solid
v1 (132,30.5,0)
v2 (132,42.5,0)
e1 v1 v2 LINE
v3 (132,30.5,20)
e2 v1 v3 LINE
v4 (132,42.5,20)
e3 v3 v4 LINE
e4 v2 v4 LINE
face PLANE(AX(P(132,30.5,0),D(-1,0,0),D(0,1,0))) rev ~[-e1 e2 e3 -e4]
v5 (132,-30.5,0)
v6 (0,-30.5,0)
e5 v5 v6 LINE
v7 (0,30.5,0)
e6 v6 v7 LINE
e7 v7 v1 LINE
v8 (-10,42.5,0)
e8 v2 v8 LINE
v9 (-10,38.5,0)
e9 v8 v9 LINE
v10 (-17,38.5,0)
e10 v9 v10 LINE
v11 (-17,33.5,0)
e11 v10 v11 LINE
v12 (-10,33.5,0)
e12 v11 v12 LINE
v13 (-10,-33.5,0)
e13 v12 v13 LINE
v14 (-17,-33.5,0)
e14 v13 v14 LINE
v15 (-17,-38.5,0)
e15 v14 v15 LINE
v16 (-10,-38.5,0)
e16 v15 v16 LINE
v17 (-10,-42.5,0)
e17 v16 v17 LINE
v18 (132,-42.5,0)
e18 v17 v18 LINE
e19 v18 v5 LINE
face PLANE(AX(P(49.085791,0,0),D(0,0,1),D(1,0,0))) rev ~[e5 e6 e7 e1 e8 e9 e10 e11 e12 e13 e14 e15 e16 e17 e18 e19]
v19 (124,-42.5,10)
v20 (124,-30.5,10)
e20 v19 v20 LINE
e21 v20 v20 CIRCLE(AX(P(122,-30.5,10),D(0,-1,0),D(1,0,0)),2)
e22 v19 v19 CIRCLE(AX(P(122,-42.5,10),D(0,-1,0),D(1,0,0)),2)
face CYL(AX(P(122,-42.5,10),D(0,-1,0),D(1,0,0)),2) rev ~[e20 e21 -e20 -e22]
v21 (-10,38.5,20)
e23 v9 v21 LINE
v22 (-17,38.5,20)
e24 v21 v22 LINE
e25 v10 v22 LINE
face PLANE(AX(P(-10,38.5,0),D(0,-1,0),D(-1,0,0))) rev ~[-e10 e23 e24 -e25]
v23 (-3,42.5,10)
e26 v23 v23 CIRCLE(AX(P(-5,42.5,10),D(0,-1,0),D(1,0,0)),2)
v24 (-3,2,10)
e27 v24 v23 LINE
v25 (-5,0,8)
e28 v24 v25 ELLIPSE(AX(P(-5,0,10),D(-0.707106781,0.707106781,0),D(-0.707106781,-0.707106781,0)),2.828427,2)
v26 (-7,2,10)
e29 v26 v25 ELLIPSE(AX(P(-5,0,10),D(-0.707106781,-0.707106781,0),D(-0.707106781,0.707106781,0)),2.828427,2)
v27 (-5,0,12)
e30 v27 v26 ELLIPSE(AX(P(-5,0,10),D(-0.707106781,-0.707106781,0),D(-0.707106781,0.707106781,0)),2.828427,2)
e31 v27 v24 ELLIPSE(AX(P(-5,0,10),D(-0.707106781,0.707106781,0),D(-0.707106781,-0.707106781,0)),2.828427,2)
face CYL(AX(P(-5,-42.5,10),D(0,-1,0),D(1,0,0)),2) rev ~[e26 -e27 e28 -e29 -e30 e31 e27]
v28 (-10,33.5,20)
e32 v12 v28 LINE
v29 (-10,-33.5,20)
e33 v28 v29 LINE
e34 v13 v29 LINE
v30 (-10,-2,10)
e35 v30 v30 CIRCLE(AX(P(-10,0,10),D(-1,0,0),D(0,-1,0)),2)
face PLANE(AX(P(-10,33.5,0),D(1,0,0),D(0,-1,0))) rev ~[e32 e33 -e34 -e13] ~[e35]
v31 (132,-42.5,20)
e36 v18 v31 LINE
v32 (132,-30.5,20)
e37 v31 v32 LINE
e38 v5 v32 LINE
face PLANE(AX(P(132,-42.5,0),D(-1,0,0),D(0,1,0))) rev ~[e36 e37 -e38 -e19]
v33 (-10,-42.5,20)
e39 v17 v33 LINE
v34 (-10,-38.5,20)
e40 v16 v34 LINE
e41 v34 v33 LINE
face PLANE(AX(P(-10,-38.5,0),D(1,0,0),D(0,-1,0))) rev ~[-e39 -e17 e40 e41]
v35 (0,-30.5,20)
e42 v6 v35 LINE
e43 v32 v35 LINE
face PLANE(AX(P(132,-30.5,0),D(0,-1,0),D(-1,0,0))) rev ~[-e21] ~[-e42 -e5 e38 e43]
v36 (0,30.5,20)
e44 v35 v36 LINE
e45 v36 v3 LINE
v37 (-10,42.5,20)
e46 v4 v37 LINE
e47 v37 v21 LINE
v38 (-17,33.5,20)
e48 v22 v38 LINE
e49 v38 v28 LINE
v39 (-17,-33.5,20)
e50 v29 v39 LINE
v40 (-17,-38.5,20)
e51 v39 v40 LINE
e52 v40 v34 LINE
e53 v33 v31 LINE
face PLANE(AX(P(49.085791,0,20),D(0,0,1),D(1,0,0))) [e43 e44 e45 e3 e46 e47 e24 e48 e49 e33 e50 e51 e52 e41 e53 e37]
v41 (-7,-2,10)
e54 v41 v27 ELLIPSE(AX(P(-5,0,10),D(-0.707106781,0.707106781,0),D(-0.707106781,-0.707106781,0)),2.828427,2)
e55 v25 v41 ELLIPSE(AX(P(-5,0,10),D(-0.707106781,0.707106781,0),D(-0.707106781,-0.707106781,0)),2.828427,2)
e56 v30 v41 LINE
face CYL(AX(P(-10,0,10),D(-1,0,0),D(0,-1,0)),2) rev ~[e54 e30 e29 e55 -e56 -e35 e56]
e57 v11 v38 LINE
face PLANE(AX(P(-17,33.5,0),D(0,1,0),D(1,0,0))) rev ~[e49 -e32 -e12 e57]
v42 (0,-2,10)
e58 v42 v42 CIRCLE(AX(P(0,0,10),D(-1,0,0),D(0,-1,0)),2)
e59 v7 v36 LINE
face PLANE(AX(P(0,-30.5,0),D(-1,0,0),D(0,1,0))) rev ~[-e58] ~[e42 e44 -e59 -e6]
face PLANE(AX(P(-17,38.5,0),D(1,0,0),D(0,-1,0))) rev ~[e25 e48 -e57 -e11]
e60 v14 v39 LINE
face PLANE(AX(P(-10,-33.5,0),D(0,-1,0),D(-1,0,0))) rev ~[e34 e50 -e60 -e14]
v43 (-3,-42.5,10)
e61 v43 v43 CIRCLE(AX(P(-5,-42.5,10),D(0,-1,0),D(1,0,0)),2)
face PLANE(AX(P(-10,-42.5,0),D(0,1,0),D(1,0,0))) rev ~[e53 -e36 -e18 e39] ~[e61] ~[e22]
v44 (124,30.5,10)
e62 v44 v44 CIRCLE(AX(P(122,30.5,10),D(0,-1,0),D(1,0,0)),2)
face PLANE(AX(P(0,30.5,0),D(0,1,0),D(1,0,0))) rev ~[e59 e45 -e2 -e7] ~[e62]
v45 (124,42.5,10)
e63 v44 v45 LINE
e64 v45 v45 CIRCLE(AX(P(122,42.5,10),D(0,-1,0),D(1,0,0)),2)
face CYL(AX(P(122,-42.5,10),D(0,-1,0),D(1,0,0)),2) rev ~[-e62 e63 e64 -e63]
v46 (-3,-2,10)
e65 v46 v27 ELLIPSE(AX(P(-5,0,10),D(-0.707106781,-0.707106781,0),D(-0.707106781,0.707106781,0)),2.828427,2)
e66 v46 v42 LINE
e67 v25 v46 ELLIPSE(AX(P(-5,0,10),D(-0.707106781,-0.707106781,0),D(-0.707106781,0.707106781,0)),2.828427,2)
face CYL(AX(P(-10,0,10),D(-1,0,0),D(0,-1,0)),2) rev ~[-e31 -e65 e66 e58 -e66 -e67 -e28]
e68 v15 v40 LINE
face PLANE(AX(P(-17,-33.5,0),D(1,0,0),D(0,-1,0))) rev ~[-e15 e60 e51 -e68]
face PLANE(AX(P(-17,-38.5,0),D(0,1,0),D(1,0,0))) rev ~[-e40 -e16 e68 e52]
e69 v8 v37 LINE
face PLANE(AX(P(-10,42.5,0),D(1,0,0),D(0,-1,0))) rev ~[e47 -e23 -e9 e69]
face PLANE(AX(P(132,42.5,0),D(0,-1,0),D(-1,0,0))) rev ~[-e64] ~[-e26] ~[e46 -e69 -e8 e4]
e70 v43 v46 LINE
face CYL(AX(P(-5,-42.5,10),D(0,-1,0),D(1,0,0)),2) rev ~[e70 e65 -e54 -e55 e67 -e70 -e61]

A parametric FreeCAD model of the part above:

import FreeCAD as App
import Part
import Sketcher

doc = App.newDocument("Part")
params = doc.addObject("Spreadsheet::Sheet", "Params")
for row, (alias, value) in enumerate([
    ("sketch1_width", "142 mm"),
    ("sketch1_width2", "132 mm"),
    ("sketch1_width3", "7 mm"),
    ("sketch1_height", "12 mm"),
    ("sketch1_height2", "61 mm"),
    ("pad1_length", "20 mm"),
    ("sketch2_diameter", "4 mm"),
    ("sketch3_diameter", "4 mm"),
], start=1):
    params.set(f"A{row}", alias)
    params.set(f"B{row}", "=" + value)
    params.setAlias(f"B{row}", alias)

body = doc.addObject("PartDesign::Body", "Body")

# Sketch on XY plane
sketch1 = body.newObject("Sketcher::SketchObject", "Sketch")
sketch1.AttachmentSupport = (doc.getObject("XY_Plane"), [""])
sketch1.MapMode = "FlatFace"
sketch1.addGeometry([
    Part.LineSegment(App.Vector(-10, -42.5, 0), App.Vector(132, -42.5, 0)),  # 0
    Part.LineSegment(App.Vector(132, -42.5, 0), App.Vector(132, -30.5, 0)),  # 1
    Part.LineSegment(App.Vector(132, -30.5, 0), App.Vector(0, -30.5, 0)),  # 2
    Part.LineSegment(App.Vector(0, -30.5, 0), App.Vector(0, 30.5, 0)),  # 3
    Part.LineSegment(App.Vector(0, 30.5, 0), App.Vector(132, 30.5, 0)),  # 4
    Part.LineSegment(App.Vector(132, 30.5, 0), App.Vector(132, 42.5, 0)),  # 5
    Part.LineSegment(App.Vector(132, 42.5, 0), App.Vector(-10, 42.5, 0)),  # 6
    Part.LineSegment(App.Vector(-10, 42.5, 0), App.Vector(-10, 38.5, 0)),  # 7
    Part.LineSegment(App.Vector(-10, 38.5, 0), App.Vector(-17, 38.5, 0)),  # 8
    Part.LineSegment(App.Vector(-17, 38.5, 0), App.Vector(-17, 33.5, 0)),  # 9
    Part.LineSegment(App.Vector(-17, 33.5, 0), App.Vector(-10, 33.5, 0)),  # 10
    Part.LineSegment(App.Vector(-10, 33.5, 0), App.Vector(-10, -33.5, 0)),  # 11
    Part.LineSegment(App.Vector(-10, -33.5, 0), App.Vector(-17, -33.5, 0)),  # 12
    Part.LineSegment(App.Vector(-17, -33.5, 0), App.Vector(-17, -38.5, 0)),  # 13
    Part.LineSegment(App.Vector(-17, -38.5, 0), App.Vector(-10, -38.5, 0)),  # 14
    Part.LineSegment(App.Vector(-10, -38.5, 0), App.Vector(-10, -42.5, 0)),  # 15
], False)
sketch1.addConstraint([
    Sketcher.Constraint("Coincident", 0, 2, 1, 1),
    Sketcher.Constraint("Coincident", 1, 2, 2, 1),
    Sketcher.Constraint("Coincident", 2, 2, 3, 1),
    Sketcher.Constraint("Coincident", 3, 2, 4, 1),
    Sketcher.Constraint("Coincident", 4, 2, 5, 1),
    Sketcher.Constraint("Coincident", 5, 2, 6, 1),
    Sketcher.Constraint("Coincident", 6, 2, 7, 1),
    Sketcher.Constraint("Coincident", 7, 2, 8, 1),
    Sketcher.Constraint("Coincident", 8, 2, 9, 1),
    Sketcher.Constraint("Coincident", 9, 2, 10, 1),
    Sketcher.Constraint("Coincident", 10, 2, 11, 1),
    Sketcher.Constraint("Coincident", 11, 2, 12, 1),
    Sketcher.Constraint("Coincident", 12, 2, 13, 1),
    Sketcher.Constraint("Coincident", 13, 2, 14, 1),
    Sketcher.Constraint("Coincident", 14, 2, 15, 1),
    Sketcher.Constraint("Coincident", 15, 2, 0, 1),
    Sketcher.Constraint("Horizontal", 0),
    Sketcher.Constraint("Vertical", 1),
    Sketcher.Constraint("Horizontal", 2),
    Sketcher.Constraint("Vertical", 3),
    Sketcher.Constraint("Horizontal", 4),
    Sketcher.Constraint("Vertical", 5),
    Sketcher.Constraint("Horizontal", 6),
    Sketcher.Constraint("Vertical", 7),
    Sketcher.Constraint("Horizontal", 8),
    Sketcher.Constraint("Vertical", 9),
    Sketcher.Constraint("Horizontal", 10),
    Sketcher.Constraint("Vertical", 11),
    Sketcher.Constraint("Horizontal", 12),
    Sketcher.Constraint("Vertical", 13),
    Sketcher.Constraint("Horizontal", 14),
    Sketcher.Constraint("Vertical", 15),
    Sketcher.Constraint("Symmetric", 2, 2, 3, 2, -1, 1),
    Sketcher.Constraint("Symmetric", 0, 2, 5, 2, -1),
    Sketcher.Constraint("Symmetric", 9, 2, 12, 2, -1),
    Sketcher.Constraint("Symmetric", 7, 2, 14, 2, -1),
    Sketcher.Constraint("Vertical", 7, 2, 10, 2),
    Sketcher.Constraint("DistanceX", 0, 1, 0, 2, 142.0),
    Sketcher.Constraint("DistanceX", 2, 2, 2, 1, 132.0),
    Sketcher.Constraint("DistanceX", 8, 2, 8, 1, 7.0),
    Sketcher.Constraint("DistanceY", 1, 1, 1, 2, 12.0),
    Sketcher.Constraint("DistanceY", 3, 1, 3, 2, 61.0),
    Sketcher.Constraint("DistanceY", 7, 2, 7, 1, 4.0),
    Sketcher.Constraint("DistanceY", 9, 2, 9, 1, 5.0),
])
sketch1.setExpression("Constraints[37]", "Params.sketch1_width")
sketch1.setExpression("Constraints[38]", "Params.sketch1_width2")
sketch1.setExpression("Constraints[39]", "Params.sketch1_width3")
sketch1.setExpression("Constraints[40]", "Params.sketch1_height")
sketch1.setExpression("Constraints[41]", "Params.sketch1_height2")
pad1 = body.newObject("PartDesign::Pad", "Pad")
pad1.Profile = sketch1
pad1.setExpression("Length", "Params.pad1_length")

# Sketch on YZ plane
sketch2 = body.newObject("Sketcher::SketchObject", "Sketch001")
sketch2.AttachmentSupport = (doc.getObject("YZ_Plane"), [""])
sketch2.MapMode = "FlatFace"
sketch2.AttachmentOffset = App.Placement(App.Vector(0, 0, -10), App.Rotation())
sketch2.addGeometry(Part.Circle(App.Vector(0, 10, 0), App.Vector(0, 0, 1), 2), False)
sketch2.addConstraint([
    Sketcher.Constraint("PointOnObject", 0, 3, -2),
    Sketcher.Constraint("Diameter", 0, 4.0),
    Sketcher.Constraint("DistanceY", -1, 1, 0, 3, 10.0),
])
sketch2.setExpression("Constraints[1]", "Params.sketch2_diameter")
pocket1 = body.newObject("PartDesign::Pocket", "Pocket")
pocket1.Profile = sketch2
pocket1.Type = "ThroughAll"
pocket1.Reversed = True

# Sketch on XZ plane
sketch3 = body.newObject("Sketcher::SketchObject", "Sketch002")
sketch3.AttachmentSupport = (doc.getObject("XZ_Plane"), [""])
sketch3.MapMode = "FlatFace"
sketch3.AttachmentOffset = App.Placement(App.Vector(0, 0, 42.5), App.Rotation())
sketch3.addGeometry([
    Part.Circle(App.Vector(-5, 10, 0), App.Vector(0, 0, 1), 2),
    Part.Circle(App.Vector(122, 10, 0), App.Vector(0, 0, 1), 2),
], False)
sketch3.addConstraint([
    Sketcher.Constraint("Equal", 0, 1),
    Sketcher.Constraint("Horizontal", 0, 3, 1, 3),
    Sketcher.Constraint("Diameter", 0, 4.0),
    Sketcher.Constraint("DistanceX", 0, 3, -1, 1, 5.0),
    Sketcher.Constraint("DistanceY", -1, 1, 0, 3, 10.0),
    Sketcher.Constraint("DistanceX", -1, 1, 1, 3, 122.0),
])
sketch3.setExpression("Constraints[2]", "Params.sketch3_diameter")
pocket2 = body.newObject("PartDesign::Pocket", "Pocket001")
pocket2.Profile = sketch3
pocket2.Type = "ThroughAll"

doc.recompute()
